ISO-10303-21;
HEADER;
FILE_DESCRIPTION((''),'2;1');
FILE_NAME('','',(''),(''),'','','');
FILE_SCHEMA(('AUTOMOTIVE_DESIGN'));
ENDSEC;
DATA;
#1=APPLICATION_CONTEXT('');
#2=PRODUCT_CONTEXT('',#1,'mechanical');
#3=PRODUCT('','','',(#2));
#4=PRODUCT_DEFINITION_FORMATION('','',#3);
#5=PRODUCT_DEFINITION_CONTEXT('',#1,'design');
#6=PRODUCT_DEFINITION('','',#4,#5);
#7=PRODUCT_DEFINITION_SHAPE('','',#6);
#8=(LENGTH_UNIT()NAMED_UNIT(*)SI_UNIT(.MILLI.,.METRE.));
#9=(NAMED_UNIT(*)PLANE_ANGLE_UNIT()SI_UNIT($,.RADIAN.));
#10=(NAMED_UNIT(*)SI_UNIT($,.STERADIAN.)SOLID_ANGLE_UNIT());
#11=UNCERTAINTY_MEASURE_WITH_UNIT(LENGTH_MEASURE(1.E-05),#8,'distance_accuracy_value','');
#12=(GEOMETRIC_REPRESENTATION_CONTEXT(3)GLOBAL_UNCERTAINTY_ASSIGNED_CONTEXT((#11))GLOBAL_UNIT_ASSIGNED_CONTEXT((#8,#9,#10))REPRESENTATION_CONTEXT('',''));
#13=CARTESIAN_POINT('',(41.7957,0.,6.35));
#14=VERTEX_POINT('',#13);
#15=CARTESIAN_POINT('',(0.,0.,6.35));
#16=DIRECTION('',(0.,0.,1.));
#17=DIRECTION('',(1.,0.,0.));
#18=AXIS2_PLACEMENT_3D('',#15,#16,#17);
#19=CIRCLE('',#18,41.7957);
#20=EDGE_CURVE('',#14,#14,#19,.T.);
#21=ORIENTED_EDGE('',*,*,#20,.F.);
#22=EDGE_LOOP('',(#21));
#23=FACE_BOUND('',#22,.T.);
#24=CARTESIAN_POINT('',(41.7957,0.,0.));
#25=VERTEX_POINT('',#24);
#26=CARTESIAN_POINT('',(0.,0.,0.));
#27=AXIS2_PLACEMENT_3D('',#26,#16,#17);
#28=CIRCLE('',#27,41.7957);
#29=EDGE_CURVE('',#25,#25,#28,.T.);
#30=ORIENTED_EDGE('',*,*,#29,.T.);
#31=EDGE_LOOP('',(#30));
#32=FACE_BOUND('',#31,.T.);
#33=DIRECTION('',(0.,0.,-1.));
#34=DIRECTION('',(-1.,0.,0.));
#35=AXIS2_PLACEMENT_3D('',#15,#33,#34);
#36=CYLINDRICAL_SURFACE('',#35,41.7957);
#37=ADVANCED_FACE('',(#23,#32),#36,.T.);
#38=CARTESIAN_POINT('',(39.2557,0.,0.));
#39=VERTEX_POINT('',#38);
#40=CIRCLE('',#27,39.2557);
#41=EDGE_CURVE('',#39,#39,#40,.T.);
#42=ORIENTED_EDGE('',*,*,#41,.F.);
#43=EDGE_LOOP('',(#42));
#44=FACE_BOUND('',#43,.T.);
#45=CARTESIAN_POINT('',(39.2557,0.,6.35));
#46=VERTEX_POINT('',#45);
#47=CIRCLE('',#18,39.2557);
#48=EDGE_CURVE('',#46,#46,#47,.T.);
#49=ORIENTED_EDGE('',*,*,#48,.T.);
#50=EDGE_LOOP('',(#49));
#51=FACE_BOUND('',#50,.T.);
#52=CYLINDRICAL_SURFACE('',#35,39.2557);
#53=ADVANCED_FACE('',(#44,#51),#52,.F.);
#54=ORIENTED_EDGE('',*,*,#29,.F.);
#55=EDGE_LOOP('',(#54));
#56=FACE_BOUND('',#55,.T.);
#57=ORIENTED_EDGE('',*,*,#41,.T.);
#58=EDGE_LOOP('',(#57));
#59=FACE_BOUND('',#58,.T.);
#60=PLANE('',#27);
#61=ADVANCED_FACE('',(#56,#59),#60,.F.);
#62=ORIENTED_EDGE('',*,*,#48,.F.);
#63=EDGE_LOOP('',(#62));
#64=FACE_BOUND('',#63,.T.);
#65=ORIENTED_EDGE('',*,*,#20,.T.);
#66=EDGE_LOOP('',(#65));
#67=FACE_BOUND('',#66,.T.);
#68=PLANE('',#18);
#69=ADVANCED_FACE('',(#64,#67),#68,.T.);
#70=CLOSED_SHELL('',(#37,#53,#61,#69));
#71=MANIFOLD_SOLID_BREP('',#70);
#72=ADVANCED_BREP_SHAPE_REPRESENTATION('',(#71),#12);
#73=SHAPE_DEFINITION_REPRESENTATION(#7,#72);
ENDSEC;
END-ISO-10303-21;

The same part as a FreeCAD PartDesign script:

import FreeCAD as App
import Part
import Sketcher
Q = App.Units.Quantity

doc = App.newDocument("Part")
params = doc.addObject("Spreadsheet::Sheet", "Params")
for row, (alias, value) in enumerate([
    ("sketch1_diameter", "3.291 in"),
    ("sketch1_diameter2", "3.091 in"),
    ("pad1_length", "0.25 in"),
], start=1):
    params.set(f"A{row}", alias)
    params.set(f"B{row}", "=" + value)
    params.setAlias(f"B{row}", alias)

body = doc.addObject("PartDesign::Body", "Body")

sketch1 = body.newObject("Sketcher::SketchObject", "Sketch")
sketch1.AttachmentSupport = (doc.getObject("XY_Plane"), [""])
sketch1.MapMode = "FlatFace"
sketch1.addGeometry([
    Part.Circle(App.Vector(0, 0, 0), App.Vector(0, 0, 1), 42),
    Part.Circle(App.Vector(0, 0, 0), App.Vector(0, 0, 1), 39),
], False)
sketch1.addConstraint([
    Sketcher.Constraint("Coincident", 0, 3, -1, 1),
    Sketcher.Constraint("Coincident", 1, 3, -1, 1),
    Sketcher.Constraint("Diameter", 0, Q("3.291 in")),
    Sketcher.Constraint("Diameter", 1, Q("3.091 in")),
])
sketch1.setExpression("Constraints[2]", "Params.sketch1_diameter")
sketch1.setExpression("Constraints[3]", "Params.sketch1_diameter2")
pad1 = body.newObject("PartDesign::Pad", "Pad")
pad1.Profile = sketch1
pad1.setExpression("Length", "Params.pad1_length")

doc.recompute()
